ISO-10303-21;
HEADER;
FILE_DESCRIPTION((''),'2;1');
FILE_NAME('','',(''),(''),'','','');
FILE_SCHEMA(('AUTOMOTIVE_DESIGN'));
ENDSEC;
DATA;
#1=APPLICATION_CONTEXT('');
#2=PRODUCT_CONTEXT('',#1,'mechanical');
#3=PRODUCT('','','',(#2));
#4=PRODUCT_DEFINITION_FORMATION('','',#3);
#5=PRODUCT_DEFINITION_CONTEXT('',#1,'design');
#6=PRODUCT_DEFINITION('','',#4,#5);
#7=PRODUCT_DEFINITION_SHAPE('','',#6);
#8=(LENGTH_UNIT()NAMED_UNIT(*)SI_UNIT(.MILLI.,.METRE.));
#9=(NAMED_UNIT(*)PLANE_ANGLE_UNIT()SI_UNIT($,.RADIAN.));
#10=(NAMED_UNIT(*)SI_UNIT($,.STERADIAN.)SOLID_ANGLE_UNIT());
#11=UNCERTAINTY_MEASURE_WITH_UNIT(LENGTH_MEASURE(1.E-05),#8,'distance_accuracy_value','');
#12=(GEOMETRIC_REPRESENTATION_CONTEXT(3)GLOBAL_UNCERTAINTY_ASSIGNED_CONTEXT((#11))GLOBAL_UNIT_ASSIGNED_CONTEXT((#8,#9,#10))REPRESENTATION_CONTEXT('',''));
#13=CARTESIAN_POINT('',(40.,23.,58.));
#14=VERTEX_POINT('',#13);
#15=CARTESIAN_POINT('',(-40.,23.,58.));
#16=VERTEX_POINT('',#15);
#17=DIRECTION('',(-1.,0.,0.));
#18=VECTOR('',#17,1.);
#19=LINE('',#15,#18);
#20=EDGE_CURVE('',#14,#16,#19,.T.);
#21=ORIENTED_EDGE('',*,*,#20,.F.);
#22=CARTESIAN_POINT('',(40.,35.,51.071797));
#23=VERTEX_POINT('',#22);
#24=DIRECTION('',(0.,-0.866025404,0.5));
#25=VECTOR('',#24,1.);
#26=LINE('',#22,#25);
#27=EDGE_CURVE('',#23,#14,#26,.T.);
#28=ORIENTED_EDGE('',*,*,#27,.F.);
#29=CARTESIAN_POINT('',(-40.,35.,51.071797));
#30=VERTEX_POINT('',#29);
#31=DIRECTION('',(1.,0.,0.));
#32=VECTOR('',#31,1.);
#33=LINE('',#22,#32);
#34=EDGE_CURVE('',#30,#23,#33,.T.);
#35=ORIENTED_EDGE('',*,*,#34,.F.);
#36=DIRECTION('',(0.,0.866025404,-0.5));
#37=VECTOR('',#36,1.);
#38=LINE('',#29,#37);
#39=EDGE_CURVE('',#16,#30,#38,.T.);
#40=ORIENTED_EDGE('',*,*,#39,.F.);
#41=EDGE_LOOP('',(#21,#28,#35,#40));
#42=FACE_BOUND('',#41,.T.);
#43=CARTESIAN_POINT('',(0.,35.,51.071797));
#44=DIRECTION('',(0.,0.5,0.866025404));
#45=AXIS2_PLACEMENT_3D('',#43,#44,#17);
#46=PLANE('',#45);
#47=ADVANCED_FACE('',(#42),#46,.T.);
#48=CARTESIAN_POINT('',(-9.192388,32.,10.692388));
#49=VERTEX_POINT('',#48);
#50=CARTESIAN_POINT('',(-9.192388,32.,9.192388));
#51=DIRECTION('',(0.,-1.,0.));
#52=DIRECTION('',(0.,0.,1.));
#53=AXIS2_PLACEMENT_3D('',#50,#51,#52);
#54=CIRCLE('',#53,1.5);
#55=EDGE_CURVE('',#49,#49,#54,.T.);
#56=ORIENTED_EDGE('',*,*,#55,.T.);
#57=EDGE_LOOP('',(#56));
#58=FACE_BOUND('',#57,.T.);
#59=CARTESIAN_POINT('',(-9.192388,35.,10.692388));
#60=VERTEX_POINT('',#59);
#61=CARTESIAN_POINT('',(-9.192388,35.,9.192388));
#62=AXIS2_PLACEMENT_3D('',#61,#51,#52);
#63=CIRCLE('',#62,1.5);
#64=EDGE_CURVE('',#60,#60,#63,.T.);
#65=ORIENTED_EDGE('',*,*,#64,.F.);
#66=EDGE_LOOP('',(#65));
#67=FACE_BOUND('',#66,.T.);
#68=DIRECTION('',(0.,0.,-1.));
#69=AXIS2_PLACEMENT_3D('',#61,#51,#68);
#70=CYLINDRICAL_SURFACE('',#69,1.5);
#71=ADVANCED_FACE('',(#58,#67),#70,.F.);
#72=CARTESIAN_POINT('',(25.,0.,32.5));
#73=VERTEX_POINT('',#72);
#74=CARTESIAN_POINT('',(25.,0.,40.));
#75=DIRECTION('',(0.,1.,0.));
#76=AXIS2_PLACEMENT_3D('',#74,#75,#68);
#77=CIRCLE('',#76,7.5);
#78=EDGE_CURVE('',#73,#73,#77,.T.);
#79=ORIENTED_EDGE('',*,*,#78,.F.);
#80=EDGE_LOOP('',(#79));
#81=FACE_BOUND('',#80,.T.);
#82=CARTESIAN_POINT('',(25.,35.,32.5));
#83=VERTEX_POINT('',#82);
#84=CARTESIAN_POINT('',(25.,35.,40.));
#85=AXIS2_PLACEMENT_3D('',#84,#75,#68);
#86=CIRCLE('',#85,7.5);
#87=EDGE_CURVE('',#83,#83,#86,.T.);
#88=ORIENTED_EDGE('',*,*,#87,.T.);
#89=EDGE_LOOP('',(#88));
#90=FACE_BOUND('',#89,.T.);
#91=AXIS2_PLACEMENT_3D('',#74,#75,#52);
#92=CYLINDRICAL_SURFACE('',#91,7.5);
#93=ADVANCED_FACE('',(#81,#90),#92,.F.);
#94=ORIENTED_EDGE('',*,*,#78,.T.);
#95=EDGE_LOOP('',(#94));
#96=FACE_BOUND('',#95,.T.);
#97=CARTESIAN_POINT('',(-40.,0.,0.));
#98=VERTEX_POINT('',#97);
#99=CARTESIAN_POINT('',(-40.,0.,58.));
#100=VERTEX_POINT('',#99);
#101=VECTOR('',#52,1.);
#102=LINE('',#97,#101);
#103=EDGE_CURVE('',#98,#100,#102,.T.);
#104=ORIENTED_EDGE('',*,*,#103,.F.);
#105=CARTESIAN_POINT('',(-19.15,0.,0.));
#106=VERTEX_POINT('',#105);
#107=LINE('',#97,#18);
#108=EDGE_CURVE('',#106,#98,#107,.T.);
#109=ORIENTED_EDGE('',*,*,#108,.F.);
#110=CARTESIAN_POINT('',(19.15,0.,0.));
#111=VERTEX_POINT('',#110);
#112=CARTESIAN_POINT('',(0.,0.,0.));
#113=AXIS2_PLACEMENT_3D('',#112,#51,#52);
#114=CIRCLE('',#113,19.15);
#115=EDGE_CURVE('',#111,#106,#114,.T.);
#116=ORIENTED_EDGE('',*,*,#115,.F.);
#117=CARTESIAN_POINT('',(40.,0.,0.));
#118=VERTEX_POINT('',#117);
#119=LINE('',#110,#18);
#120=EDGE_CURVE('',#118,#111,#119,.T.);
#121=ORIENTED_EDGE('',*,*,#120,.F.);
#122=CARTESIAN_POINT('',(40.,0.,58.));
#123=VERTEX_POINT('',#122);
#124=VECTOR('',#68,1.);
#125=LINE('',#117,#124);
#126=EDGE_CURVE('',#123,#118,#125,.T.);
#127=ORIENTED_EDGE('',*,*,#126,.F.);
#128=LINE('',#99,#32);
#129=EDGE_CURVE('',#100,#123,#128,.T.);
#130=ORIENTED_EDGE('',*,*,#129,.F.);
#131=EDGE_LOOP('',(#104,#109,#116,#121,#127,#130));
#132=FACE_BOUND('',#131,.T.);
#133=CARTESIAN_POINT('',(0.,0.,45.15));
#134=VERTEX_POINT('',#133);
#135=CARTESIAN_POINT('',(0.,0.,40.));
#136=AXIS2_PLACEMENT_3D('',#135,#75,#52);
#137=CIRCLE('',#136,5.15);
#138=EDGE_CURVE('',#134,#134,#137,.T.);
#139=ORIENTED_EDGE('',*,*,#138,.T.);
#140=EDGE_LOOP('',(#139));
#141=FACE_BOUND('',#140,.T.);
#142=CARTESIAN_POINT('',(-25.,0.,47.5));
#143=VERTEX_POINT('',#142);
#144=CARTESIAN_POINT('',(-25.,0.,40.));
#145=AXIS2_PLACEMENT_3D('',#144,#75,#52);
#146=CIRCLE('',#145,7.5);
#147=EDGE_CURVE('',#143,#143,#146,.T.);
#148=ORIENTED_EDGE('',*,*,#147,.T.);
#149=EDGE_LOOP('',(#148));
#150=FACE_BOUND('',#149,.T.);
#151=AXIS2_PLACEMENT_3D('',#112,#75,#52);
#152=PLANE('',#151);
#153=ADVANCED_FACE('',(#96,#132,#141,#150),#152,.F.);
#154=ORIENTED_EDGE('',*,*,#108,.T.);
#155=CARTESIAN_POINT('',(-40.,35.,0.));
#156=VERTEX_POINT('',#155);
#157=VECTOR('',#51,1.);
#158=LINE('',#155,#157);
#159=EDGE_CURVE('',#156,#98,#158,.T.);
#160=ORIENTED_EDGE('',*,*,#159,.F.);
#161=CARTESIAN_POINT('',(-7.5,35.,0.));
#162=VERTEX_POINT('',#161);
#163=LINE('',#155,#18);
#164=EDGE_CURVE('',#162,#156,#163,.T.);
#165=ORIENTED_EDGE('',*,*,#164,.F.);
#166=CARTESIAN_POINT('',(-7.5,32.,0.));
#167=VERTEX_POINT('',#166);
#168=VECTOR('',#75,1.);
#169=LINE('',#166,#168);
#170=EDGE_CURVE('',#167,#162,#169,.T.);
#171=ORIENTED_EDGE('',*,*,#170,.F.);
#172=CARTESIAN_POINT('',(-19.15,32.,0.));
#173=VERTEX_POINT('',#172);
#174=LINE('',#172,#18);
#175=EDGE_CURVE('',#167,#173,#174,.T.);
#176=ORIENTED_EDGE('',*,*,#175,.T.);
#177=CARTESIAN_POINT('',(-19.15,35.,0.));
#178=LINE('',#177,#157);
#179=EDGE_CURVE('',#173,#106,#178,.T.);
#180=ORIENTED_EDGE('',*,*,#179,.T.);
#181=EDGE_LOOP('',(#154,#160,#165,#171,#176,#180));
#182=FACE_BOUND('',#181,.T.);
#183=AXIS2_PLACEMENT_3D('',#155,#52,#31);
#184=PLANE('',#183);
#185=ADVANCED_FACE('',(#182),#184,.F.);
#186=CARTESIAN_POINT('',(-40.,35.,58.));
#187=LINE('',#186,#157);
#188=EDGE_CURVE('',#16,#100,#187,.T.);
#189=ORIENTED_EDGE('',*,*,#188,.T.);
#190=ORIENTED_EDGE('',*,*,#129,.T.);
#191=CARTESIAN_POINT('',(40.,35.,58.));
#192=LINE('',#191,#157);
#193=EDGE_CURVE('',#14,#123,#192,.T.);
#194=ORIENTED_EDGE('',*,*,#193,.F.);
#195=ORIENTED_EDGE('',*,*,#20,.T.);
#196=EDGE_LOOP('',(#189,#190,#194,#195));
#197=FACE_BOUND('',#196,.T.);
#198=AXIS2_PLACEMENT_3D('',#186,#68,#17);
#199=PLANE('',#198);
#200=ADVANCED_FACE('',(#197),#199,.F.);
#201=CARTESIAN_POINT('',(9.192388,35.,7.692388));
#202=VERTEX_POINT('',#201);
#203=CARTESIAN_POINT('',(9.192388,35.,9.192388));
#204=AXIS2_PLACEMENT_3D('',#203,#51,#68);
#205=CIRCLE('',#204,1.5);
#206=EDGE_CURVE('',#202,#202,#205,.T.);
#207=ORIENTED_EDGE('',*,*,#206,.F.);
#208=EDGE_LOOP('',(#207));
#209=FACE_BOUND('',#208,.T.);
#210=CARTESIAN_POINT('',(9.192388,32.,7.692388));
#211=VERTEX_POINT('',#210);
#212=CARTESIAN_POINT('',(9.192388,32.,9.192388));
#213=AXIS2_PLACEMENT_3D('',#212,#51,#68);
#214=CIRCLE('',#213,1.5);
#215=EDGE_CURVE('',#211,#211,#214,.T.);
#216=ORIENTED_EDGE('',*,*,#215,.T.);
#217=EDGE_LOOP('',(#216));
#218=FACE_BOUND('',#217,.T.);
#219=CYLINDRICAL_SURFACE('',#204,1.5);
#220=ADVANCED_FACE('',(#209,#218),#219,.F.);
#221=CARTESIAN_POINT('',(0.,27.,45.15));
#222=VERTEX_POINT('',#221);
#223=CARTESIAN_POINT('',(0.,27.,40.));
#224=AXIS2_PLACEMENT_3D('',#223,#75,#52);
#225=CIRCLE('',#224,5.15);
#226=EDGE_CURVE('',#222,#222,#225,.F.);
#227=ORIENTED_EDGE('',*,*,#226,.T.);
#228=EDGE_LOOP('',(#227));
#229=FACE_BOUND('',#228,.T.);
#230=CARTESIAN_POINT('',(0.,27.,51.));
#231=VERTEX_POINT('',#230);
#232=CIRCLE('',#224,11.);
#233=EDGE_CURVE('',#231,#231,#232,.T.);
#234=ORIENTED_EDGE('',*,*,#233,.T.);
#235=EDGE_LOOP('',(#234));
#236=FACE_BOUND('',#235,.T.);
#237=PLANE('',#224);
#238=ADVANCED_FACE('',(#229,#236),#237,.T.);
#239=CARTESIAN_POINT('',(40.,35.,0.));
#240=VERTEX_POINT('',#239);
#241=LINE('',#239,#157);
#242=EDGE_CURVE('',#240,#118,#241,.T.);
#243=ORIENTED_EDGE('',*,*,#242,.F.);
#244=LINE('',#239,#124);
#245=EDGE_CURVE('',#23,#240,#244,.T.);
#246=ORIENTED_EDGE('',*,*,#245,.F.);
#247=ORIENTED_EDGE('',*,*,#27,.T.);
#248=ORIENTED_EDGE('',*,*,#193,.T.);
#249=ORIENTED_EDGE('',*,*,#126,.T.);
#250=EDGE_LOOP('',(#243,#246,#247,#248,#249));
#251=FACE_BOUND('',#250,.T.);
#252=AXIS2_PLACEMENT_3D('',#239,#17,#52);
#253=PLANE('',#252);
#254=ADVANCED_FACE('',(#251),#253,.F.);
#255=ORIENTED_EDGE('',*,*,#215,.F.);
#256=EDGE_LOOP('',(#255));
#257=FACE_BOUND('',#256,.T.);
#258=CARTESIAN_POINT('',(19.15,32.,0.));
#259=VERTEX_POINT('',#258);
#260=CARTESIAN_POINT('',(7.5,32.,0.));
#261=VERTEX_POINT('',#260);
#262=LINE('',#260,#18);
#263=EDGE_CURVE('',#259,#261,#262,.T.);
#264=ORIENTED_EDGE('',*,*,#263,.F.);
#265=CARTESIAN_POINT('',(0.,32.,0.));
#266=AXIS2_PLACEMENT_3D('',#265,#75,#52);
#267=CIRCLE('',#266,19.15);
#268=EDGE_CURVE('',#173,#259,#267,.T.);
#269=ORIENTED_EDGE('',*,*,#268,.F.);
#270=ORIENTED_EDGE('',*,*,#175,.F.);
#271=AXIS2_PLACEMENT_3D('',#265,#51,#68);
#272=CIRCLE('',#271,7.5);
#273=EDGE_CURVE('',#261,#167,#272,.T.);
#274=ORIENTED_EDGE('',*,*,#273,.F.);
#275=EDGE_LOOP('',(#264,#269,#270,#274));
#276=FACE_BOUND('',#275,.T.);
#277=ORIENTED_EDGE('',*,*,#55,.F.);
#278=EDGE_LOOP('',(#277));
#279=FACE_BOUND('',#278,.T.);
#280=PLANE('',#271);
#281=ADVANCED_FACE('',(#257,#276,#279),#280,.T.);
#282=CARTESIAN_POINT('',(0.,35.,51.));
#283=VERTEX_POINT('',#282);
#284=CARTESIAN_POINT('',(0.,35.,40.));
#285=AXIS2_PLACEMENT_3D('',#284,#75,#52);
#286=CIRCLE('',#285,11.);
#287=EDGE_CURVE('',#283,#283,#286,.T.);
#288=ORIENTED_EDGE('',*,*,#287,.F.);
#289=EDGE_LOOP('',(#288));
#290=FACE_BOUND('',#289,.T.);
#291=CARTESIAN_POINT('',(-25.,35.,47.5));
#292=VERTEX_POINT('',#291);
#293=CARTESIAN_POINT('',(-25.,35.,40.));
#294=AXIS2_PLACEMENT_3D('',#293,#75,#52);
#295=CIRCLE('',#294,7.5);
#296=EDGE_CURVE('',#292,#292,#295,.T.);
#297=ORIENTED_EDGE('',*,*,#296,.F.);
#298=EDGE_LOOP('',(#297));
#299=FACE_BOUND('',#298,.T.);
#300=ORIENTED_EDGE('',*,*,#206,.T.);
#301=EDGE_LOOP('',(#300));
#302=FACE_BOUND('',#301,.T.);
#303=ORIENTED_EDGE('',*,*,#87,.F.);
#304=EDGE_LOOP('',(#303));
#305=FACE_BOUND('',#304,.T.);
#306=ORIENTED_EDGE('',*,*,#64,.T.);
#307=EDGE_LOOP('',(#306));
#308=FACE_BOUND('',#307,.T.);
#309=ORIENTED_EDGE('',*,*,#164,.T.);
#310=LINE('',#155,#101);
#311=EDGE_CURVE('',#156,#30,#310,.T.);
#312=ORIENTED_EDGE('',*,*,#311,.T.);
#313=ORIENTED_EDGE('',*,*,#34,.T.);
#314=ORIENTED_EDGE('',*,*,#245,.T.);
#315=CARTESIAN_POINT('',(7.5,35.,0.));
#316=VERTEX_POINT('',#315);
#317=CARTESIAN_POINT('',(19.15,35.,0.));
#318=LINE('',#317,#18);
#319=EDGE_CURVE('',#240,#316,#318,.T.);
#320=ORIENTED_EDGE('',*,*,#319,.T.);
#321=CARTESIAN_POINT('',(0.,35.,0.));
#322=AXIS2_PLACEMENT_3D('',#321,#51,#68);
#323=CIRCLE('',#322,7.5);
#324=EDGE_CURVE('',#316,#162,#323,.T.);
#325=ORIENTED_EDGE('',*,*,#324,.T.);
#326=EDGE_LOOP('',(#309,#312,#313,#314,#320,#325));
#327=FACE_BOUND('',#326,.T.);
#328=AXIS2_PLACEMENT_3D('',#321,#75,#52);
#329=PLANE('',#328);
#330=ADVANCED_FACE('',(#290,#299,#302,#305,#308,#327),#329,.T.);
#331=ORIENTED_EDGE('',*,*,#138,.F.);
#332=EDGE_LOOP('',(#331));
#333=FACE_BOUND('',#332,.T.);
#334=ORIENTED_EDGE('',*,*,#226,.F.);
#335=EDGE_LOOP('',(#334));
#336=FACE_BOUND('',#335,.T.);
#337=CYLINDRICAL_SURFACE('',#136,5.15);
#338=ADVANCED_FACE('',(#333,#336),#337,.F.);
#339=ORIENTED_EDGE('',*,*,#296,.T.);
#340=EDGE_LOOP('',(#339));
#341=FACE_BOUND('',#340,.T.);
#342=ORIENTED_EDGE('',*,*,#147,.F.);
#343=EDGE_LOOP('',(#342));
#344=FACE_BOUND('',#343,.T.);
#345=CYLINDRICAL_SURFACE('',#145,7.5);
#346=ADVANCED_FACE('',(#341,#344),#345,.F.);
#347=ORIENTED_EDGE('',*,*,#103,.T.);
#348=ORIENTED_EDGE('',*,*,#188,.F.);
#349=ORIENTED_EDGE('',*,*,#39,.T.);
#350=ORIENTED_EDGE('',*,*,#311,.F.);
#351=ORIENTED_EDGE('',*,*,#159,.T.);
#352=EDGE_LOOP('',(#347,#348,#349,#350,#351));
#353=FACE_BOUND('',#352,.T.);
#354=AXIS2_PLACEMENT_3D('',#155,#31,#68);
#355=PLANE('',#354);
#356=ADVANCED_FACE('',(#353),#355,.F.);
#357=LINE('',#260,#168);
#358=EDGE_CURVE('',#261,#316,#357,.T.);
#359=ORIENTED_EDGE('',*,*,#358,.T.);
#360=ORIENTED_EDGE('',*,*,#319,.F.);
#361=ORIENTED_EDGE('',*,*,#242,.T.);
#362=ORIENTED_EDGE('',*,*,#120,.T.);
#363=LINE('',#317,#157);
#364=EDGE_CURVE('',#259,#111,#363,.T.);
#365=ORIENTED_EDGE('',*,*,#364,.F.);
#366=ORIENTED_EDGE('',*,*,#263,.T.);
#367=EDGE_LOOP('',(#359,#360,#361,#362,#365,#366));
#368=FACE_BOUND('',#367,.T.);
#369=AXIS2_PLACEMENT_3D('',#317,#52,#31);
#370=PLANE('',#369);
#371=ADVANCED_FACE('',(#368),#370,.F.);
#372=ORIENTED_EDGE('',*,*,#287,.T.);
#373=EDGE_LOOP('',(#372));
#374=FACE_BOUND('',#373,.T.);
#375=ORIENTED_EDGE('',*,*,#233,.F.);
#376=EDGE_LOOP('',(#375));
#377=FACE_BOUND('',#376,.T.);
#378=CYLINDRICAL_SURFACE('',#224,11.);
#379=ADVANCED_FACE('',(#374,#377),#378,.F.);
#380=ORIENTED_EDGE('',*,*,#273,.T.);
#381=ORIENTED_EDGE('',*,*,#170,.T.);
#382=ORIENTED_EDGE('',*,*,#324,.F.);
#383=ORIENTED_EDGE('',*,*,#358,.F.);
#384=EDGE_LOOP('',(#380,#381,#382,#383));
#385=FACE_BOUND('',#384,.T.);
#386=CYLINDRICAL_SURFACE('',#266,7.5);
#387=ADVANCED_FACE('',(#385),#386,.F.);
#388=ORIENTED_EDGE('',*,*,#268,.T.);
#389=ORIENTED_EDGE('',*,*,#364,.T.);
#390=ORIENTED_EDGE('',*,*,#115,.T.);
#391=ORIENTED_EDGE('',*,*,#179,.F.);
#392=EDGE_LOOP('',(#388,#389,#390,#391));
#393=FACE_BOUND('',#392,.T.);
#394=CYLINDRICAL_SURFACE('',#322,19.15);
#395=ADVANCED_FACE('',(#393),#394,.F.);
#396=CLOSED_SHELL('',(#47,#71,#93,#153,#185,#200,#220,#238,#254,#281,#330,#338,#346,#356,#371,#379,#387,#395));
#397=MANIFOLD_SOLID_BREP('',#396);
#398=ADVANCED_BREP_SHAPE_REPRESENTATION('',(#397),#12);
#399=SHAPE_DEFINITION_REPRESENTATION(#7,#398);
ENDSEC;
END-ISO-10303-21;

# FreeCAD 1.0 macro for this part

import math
import FreeCAD as App
import Part
import Sketcher
from FreeCAD import Vector
Q = App.Units.Quantity


def edges_at(feature, points):
    """Names of the edges that pass closest to the given points."""
    edges = feature.Shape.Edges
    near = lambda p: min(range(len(edges)), key=lambda i: edges[i].distToShape(Part.Vertex(*p))[0])
    return sorted({f"Edge{near(p) + 1}" for p in points})

doc = App.newDocument("Part")
params = doc.addObject("Spreadsheet::Sheet", "Params")
for row, (alias, value) in enumerate([
    ("sketch1_width", "80 mm"),
    ("sketch1_height", "58 mm"),
    ("sketch1_radius", "19.15 mm"),
    ("pad1_length", "35 mm"),
    ("sketch2_diameter", "15 mm"),
    ("sketch2_diameter2", "10.3 mm"),
    ("sketch3_radius", "7.5 mm"),
    ("sketch3_radius2", "19.15 mm"),
    ("pad2_length", "3 mm"),
    ("sketch4_diameter", "3 mm"),
    ("chamfer_size", "12 mm"),
    ("chamfer_size2", "6.928203 mm"),
    ("sketch5_diameter", "22 mm"),
    ("pocket3_length", "8 mm"),
], start=1):
    params.set(f"A{row}", alias)
    params.set(f"B{row}", "=" + value)
    params.setAlias(f"B{row}", alias)

body = doc.addObject("PartDesign::Body", "Body")

# Sketch on XZ plane
sketch1 = body.newObject("Sketcher::SketchObject", "Sketch")
sketch1.AttachmentSupport = (doc.getObject("XZ_Plane"), [""])
sketch1.MapMode = "FlatFace"
sketch1.addGeometry(Part.LineSegment(Vector(40, 0, 0), Vector(19, 0, 0)), False)
sketch1.addGeometry(Part.ArcOfCircle(Part.Circle(Vector(0, 0, 0), Vector(0, 0, 1), 19), math.radians(0), math.radians(180)), False)
sketch1.addGeometry(Part.LineSegment(Vector(-19, 0, 0), Vector(-40, 0, 0)), False)
sketch1.addGeometry(Part.LineSegment(Vector(-40, 0, 0), Vector(-40, 58, 0)), False)
sketch1.addGeometry(Part.LineSegment(Vector(-40, 58, 0), Vector(40, 58, 0)), False)
sketch1.addGeometry(Part.LineSegment(Vector(40, 58, 0), Vector(40, 0, 0)), False)
sketch1.addConstraint(Sketcher.Constraint("Coincident", 0, 2, 1, 1))
sketch1.addConstraint(Sketcher.Constraint("Coincident", 1, 2, 2, 1))
sketch1.addConstraint(Sketcher.Constraint("Coincident", 2, 2, 3, 1))
sketch1.addConstraint(Sketcher.Constraint("Coincident", 3, 2, 4, 1))
sketch1.addConstraint(Sketcher.Constraint("Coincident", 4, 2, 5, 1))
sketch1.addConstraint(Sketcher.Constraint("Coincident", 5, 2, 0, 1))
sketch1.addConstraint(Sketcher.Constraint("Horizontal", 0))
sketch1.addConstraint(Sketcher.Constraint("Horizontal", 2))
sketch1.addConstraint(Sketcher.Constraint("Vertical", 3))
sketch1.addConstraint(Sketcher.Constraint("Horizontal", 4))
sketch1.addConstraint(Sketcher.Constraint("Vertical", 5))
sketch1.addConstraint(Sketcher.Constraint("Coincident", 1, 3, -1, 1))
sketch1.addConstraint(Sketcher.Constraint("Symmetric", 2, 2, 5, 2, -1, 1))
sketch1.addConstraint(Sketcher.Constraint("PointOnObject", 0, 2, -1))
sketch1.addConstraint(Sketcher.Constraint("DistanceX", 4, 1, 4, 2, Q("80 mm")))
sketch1.addConstraint(Sketcher.Constraint("DistanceY", 3, 1, 3, 2, Q("58 mm")))
sketch1.addConstraint(Sketcher.Constraint("Radius", 1, Q("19.15 mm")))
sketch1.setExpression("Constraints[14]", "Params.sketch1_width")
sketch1.setExpression("Constraints[15]", "Params.sketch1_height")
sketch1.setExpression("Constraints[16]", "Params.sketch1_radius")
pad1 = body.newObject("PartDesign::Pad", "Pad")
pad1.Profile = sketch1
pad1.setExpression("Length", "Params.pad1_length")
pad1.Reversed = True

# Sketch on XZ plane
sketch2 = body.newObject("Sketcher::SketchObject", "Sketch001")
sketch2.AttachmentSupport = (doc.getObject("XZ_Plane"), [""])
sketch2.MapMode = "FlatFace"
sketch2.AttachmentOffset = App.Placement(Vector(0, 0, -35), App.Rotation())
sketch2.addGeometry(Part.Circle(Vector(-25, 40, 0), Vector(0, 0, 1), 8), False)
sketch2.addGeometry(Part.Circle(Vector(25, 40, 0), Vector(0, 0, 1), 8), False)
sketch2.addGeometry(Part.Circle(Vector(0, 40, 0), Vector(0, 0, 1), 5), False)
sketch2.addConstraint(Sketcher.Constraint("Equal", 0, 1))
sketch2.addConstraint(Sketcher.Constraint("Symmetric", 0, 3, 1, 3, -2))
sketch2.addConstraint(Sketcher.Constraint("PointOnObject", 2, 3, -2))
sketch2.addConstraint(Sketcher.Constraint("Horizontal", 1, 3, 2, 3))
sketch2.addConstraint(Sketcher.Constraint("Diameter", 0, Q("15 mm")))
sketch2.addConstraint(Sketcher.Constraint("Diameter", 2, Q("10.3 mm")))
sketch2.addConstraint(Sketcher.Constraint("DistanceX", 0, 3, -1, 1, Q("25 mm")))
sketch2.addConstraint(Sketcher.Constraint("DistanceY", -1, 1, 0, 3, Q("40 mm")))
sketch2.setExpression("Constraints[4]", "Params.sketch2_diameter")
sketch2.setExpression("Constraints[5]", "Params.sketch2_diameter2")
pocket1 = body.newObject("PartDesign::Pocket", "Pocket")
pocket1.Profile = sketch2
pocket1.Type = "ThroughAll"
pocket1.Reversed = True

# Sketch on XZ plane
sketch3 = body.newObject("Sketcher::SketchObject", "Sketch002")
sketch3.AttachmentSupport = (doc.getObject("XZ_Plane"), [""])
sketch3.MapMode = "FlatFace"
sketch3.AttachmentOffset = App.Placement(Vector(0, 0, -35), App.Rotation())
sketch3.addGeometry(Part.LineSegment(Vector(-8, 0, 0), Vector(-19, 0, 0)), False)
sketch3.addGeometry(Part.ArcOfCircle(Part.Circle(Vector(0, 0, 0), Vector(0, 0, 1), 19), math.radians(0), math.radians(180)), False)
sketch3.addGeometry(Part.LineSegment(Vector(19, 0, 0), Vector(8, 0, 0)), False)
sketch3.addGeometry(Part.ArcOfCircle(Part.Circle(Vector(0, 0, 0), Vector(0, 0, 1), 8), math.radians(0), math.radians(180)), False)
sketch3.addConstraint(Sketcher.Constraint("Coincident", 0, 2, 1, 2))
sketch3.addConstraint(Sketcher.Constraint("Coincident", 1, 1, 2, 1))
sketch3.addConstraint(Sketcher.Constraint("Coincident", 2, 2, 3, 1))
sketch3.addConstraint(Sketcher.Constraint("Coincident", 3, 2, 0, 1))
sketch3.addConstraint(Sketcher.Constraint("Horizontal", 0))
sketch3.addConstraint(Sketcher.Constraint("Horizontal", 2))
sketch3.addConstraint(Sketcher.Constraint("Coincident", 1, 3, -1, 1))
sketch3.addConstraint(Sketcher.Constraint("Coincident", 3, 3, -1, 1))
sketch3.addConstraint(Sketcher.Constraint("PointOnObject", 0, 2, -1))
sketch3.addConstraint(Sketcher.Constraint("PointOnObject", 1, 1, -1))
sketch3.addConstraint(Sketcher.Constraint("Radius", 3, Q("7.5 mm")))
sketch3.addConstraint(Sketcher.Constraint("Radius", 1, Q("19.15 mm")))
sketch3.setExpression("Constraints[10]", "Params.sketch3_radius")
sketch3.setExpression("Constraints[11]", "Params.sketch3_radius2")
pad2 = body.newObject("PartDesign::Pad", "Pad001")
pad2.Profile = sketch3
pad2.setExpression("Length", "Params.pad2_length")

# Sketch on XZ plane
sketch4 = body.newObject("Sketcher::SketchObject", "Sketch003")
sketch4.AttachmentSupport = (doc.getObject("XZ_Plane"), [""])
sketch4.MapMode = "FlatFace"
sketch4.AttachmentOffset = App.Placement(Vector(0, 0, -32), App.Rotation())
sketch4.addGeometry(Part.Circle(Vector(9.2, 9.2, 0), Vector(0, 0, 1), 1.5), False)
sketch4.addGeometry(Part.Circle(Vector(-9.2, 9.2, 0), Vector(0, 0, 1), 1.5), False)
sketch4.addConstraint(Sketcher.Constraint("Equal", 0, 1))
sketch4.addConstraint(Sketcher.Constraint("Symmetric", 0, 3, 1, 3, -2))
sketch4.addConstraint(Sketcher.Constraint("Diameter", 0, Q("3 mm")))
sketch4.addConstraint(Sketcher.Constraint("DistanceX", -1, 1, 0, 3, Q("9.192388 mm")))
sketch4.addConstraint(Sketcher.Constraint("DistanceY", -1, 1, 0, 3, Q("9.192388 mm")))
sketch4.setExpression("Constraints[2]", "Params.sketch4_diameter")
pocket2 = body.newObject("PartDesign::Pocket", "Pocket001")
pocket2.Profile = sketch4
pocket2.Type = "ThroughAll"
doc.recompute()

chamfer = body.newObject("PartDesign::Chamfer", "Chamfer")
chamfer.Base = (pocket2, edges_at(pocket2, [(0, 35, 58)]))
chamfer.ChamferType = "Two distances"
chamfer.setExpression("Size", "Params.chamfer_size")
chamfer.setExpression("Size2", "Params.chamfer_size2")

# Sketch on XZ plane
sketch5 = body.newObject("Sketcher::SketchObject", "Sketch004")
sketch5.AttachmentSupport = (doc.getObject("XZ_Plane"), [""])
sketch5.MapMode = "FlatFace"
sketch5.AttachmentOffset = App.Placement(Vector(0, 0, -35), App.Rotation())
sketch5.addGeometry(Part.Circle(Vector(0, 40, 0), Vector(0, 0, 1), 11), False)
sketch5.addConstraint(Sketcher.Constraint("PointOnObject", 0, 3, -2))
sketch5.addConstraint(Sketcher.Constraint("Diameter", 0, Q("22 mm")))
sketch5.addConstraint(Sketcher.Constraint("DistanceY", -1, 1, 0, 3, Q("40 mm")))
sketch5.setExpression("Constraints[1]", "Params.sketch5_diameter")
pocket3 = body.newObject("PartDesign::Pocket", "Pocket002")
pocket3.Profile = sketch5
pocket3.setExpression("Length", "Params.pocket3_length")
pocket3.Reversed = True

doc.recompute()
